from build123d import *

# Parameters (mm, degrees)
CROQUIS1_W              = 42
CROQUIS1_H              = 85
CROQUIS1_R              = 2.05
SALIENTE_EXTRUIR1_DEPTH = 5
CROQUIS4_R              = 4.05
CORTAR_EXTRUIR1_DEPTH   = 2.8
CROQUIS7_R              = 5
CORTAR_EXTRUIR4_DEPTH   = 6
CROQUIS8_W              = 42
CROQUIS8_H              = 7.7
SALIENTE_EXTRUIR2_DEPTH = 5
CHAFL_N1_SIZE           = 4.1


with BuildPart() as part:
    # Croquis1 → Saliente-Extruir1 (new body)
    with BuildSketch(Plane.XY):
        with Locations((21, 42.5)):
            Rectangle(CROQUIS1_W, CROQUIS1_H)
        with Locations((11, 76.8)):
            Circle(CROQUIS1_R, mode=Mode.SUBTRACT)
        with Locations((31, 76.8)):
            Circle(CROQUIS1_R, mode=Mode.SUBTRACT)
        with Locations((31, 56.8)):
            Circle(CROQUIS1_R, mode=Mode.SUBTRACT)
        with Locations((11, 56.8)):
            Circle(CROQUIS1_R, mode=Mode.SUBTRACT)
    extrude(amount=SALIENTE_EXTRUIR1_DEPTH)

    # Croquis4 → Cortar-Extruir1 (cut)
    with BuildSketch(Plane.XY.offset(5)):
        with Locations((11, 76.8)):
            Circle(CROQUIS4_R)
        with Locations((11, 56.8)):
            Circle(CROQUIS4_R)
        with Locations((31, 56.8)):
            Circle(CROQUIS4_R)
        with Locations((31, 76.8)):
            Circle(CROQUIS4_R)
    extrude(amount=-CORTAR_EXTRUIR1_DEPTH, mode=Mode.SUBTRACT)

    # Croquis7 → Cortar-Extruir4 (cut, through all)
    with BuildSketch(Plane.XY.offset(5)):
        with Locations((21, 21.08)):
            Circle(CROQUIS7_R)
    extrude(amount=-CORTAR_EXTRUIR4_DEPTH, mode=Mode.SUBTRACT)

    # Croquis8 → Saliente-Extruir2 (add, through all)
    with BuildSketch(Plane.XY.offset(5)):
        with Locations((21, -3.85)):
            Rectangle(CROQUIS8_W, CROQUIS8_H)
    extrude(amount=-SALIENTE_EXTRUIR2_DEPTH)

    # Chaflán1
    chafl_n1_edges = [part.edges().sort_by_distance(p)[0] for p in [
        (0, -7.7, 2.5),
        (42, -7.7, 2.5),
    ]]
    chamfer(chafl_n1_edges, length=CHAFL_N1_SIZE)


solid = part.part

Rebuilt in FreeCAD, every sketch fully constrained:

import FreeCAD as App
import Part
import Sketcher


def edges_at(feature, points):
    """Names of the edges that pass closest to the given points."""
    edges = feature.Shape.Edges
    near = lambda p: min(range(len(edges)), key=lambda i: edges[i].distToShape(Part.Vertex(*p))[0])
    return sorted({f"Edge{near(p) + 1}" for p in points})


def add_polygon(sketch, points):
    """Adds a closed chain of lines whose ends are joined by coincident constraints."""
    first, n = sketch.GeometryCount, len(points)
    for a, b in zip(points, points[1:] + points[:1]):
        sketch.addGeometry(Part.LineSegment(App.Vector(*a, 0), App.Vector(*b, 0)), False)
    for i in range(n):
        sketch.addConstraint(Sketcher.Constraint("Coincident", first + i, 2, first + (i + 1) % n, 1))

doc = App.newDocument("Part")
body = doc.addObject("PartDesign::Body", "Body")

sketch1 = doc.addObject("Sketcher::SketchObject", "Sketch")
body.addObject(sketch1)
sketch1.AttachmentSupport = (doc.XY_Plane, [""])
sketch1.MapMode = "FlatFace"
add_polygon(sketch1, [(0, 85), (0, 0), (42, 0), (42, 85)])
sketch1.addGeometry(Part.Circle(App.Vector(11, 56.8, 0), App.Vector(0, 0, 1), 2), False)
sketch1.addGeometry(Part.Circle(App.Vector(31, 56.8, 0), App.Vector(0, 0, 1), 2), False)
sketch1.addGeometry(Part.Circle(App.Vector(11, 76.8, 0), App.Vector(0, 0, 1), 2), False)
sketch1.addGeometry(Part.Circle(App.Vector(31, 76.8, 0), App.Vector(0, 0, 1), 2), False)
sketch1.addConstraint(Sketcher.Constraint("Vertical", 0))
sketch1.addConstraint(Sketcher.Constraint("Horizontal", 1))
sketch1.addConstraint(Sketcher.Constraint("Vertical", 2))
sketch1.addConstraint(Sketcher.Constraint("Horizontal", 3))
sketch1.addConstraint(Sketcher.Constraint("Coincident", 0, 2, -1, 1))
sketch1.addConstraint(Sketcher.Constraint("Equal", 4, 5))
sketch1.addConstraint(Sketcher.Constraint("Equal", 5, 6))
sketch1.addConstraint(Sketcher.Constraint("Equal", 6, 7))
sketch1.addConstraint(Sketcher.Constraint("Horizontal", 4, 3, 5, 3))
sketch1.addConstraint(Sketcher.Constraint("Horizontal", 6, 3, 7, 3))
sketch1.addConstraint(Sketcher.Constraint("Vertical", 4, 3, 6, 3))
sketch1.addConstraint(Sketcher.Constraint("Vertical", 5, 3, 7, 3))
sketch1.addConstraint(Sketcher.Constraint("Diameter", 4, 4.1))
sketch1.addConstraint(Sketcher.Constraint("DistanceX", 1, 1, 1, 2, 42.0))
sketch1.addConstraint(Sketcher.Constraint("DistanceY", 0, 2, 0, 1, 85.0))
sketch1.addConstraint(Sketcher.Constraint("DistanceX", -1, 1, 4, 3, 11.0))
sketch1.addConstraint(Sketcher.Constraint("DistanceX", -1, 1, 5, 3, 31.0))
sketch1.addConstraint(Sketcher.Constraint("DistanceY", 4, 3, 6, 3, 20.0))
sketch1.addConstraint(Sketcher.Constraint("DistanceY", -1, 1, 4, 3, 56.8))
pad1 = doc.addObject("PartDesign::Pad", "Pad")
body.addObject(pad1)
pad1.Profile = sketch1
pad1.Length = 5

sketch2 = doc.addObject("Sketcher::SketchObject", "Sketch001")
body.addObject(sketch2)
sketch2.AttachmentSupport = (doc.XY_Plane, [""])
sketch2.MapMode = "FlatFace"
sketch2.AttachmentOffset = App.Placement(App.Vector(0, 0, 5), App.Rotation())
sketch2.addGeometry(Part.Circle(App.Vector(11, 76.8, 0), App.Vector(0, 0, 1), 4), False)
sketch2.addGeometry(Part.Circle(App.Vector(11, 56.8, 0), App.Vector(0, 0, 1), 4), False)
sketch2.addGeometry(Part.Circle(App.Vector(31, 56.8, 0), App.Vector(0, 0, 1), 4), False)
sketch2.addGeometry(Part.Circle(App.Vector(31, 76.8, 0), App.Vector(0, 0, 1), 4), False)
sketch2.addConstraint(Sketcher.Constraint("Equal", 0, 1))
sketch2.addConstraint(Sketcher.Constraint("Equal", 1, 2))
sketch2.addConstraint(Sketcher.Constraint("Equal", 2, 3))
sketch2.addConstraint(Sketcher.Constraint("Horizontal", 1, 3, 2, 3))
sketch2.addConstraint(Sketcher.Constraint("Horizontal", 0, 3, 3, 3))
sketch2.addConstraint(Sketcher.Constraint("Vertical", 0, 3, 1, 3))
sketch2.addConstraint(Sketcher.Constraint("Vertical", 2, 3, 3, 3))
sketch2.addConstraint(Sketcher.Constraint("Diameter", 0, 8.1))
sketch2.addConstraint(Sketcher.Constraint("DistanceX", -1, 1, 0, 3, 11.0))
sketch2.addConstraint(Sketcher.Constraint("DistanceX", -1, 1, 2, 3, 31.0))
sketch2.addConstraint(Sketcher.Constraint("DistanceY", 1, 3, 0, 3, 20.0))
sketch2.addConstraint(Sketcher.Constraint("DistanceY", -1, 1, 0, 3, 76.8))
pocket1 = doc.addObject("PartDesign::Pocket", "Pocket")
body.addObject(pocket1)
pocket1.Profile = sketch2
pocket1.Length = 2.8

sketch3 = doc.addObject("Sketcher::SketchObject", "Sketch002")
body.addObject(sketch3)
sketch3.AttachmentSupport = (doc.XY_Plane, [""])
sketch3.MapMode = "FlatFace"
sketch3.AttachmentOffset = App.Placement(App.Vector(0, 0, 5), App.Rotation())
sketch3.addGeometry(Part.Circle(App.Vector(21, 21, 0), App.Vector(0, 0, 1), 5), False)
sketch3.addConstraint(Sketcher.Constraint("Diameter", 0, 10.0))
sketch3.addConstraint(Sketcher.Constraint("DistanceX", -1, 1, 0, 3, 21.0))
sketch3.addConstraint(Sketcher.Constraint("DistanceY", -1, 1, 0, 3, 21.08))
pocket2 = doc.addObject("PartDesign::Pocket", "Pocket001")
body.addObject(pocket2)
pocket2.Profile = sketch3
pocket2.Type = "ThroughAll"

sketch4 = doc.addObject("Sketcher::SketchObject", "Sketch003")
body.addObject(sketch4)
sketch4.AttachmentSupport = (doc.XY_Plane, [""])
sketch4.MapMode = "FlatFace"
sketch4.AttachmentOffset = App.Placement(App.Vector(0, 0, 5), App.Rotation())
add_polygon(sketch4, [(0, 0), (0, -8), (42, -8), (42, 0)])
sketch4.addConstraint(Sketcher.Constraint("Vertical", 0))
sketch4.addConstraint(Sketcher.Constraint("Horizontal", 1))
sketch4.addConstraint(Sketcher.Constraint("Vertical", 2))
sketch4.addConstraint(Sketcher.Constraint("Horizontal", 3))
sketch4.addConstraint(Sketcher.Constraint("Coincident", 3, 2, -1, 1))
sketch4.addConstraint(Sketcher.Constraint("DistanceX", 1, 1, 1, 2, 42.0))
sketch4.addConstraint(Sketcher.Constraint("DistanceY", 0, 2, 0, 1, 7.7))
pad2 = doc.addObject("PartDesign::Pad", "Pad001")
body.addObject(pad2)
pad2.Profile = sketch4
pad2.Length = 5
pad2.Reversed = True
doc.recompute()

chamfer = doc.addObject("PartDesign::Chamfer", "Chamfer")
body.addObject(chamfer)
chamfer.Base = (pad2, edges_at(pad2, [(0, -7.7, 2.5), (42, -7.7, 2.5)]))
chamfer.Size = 4.1

doc.recompute()
